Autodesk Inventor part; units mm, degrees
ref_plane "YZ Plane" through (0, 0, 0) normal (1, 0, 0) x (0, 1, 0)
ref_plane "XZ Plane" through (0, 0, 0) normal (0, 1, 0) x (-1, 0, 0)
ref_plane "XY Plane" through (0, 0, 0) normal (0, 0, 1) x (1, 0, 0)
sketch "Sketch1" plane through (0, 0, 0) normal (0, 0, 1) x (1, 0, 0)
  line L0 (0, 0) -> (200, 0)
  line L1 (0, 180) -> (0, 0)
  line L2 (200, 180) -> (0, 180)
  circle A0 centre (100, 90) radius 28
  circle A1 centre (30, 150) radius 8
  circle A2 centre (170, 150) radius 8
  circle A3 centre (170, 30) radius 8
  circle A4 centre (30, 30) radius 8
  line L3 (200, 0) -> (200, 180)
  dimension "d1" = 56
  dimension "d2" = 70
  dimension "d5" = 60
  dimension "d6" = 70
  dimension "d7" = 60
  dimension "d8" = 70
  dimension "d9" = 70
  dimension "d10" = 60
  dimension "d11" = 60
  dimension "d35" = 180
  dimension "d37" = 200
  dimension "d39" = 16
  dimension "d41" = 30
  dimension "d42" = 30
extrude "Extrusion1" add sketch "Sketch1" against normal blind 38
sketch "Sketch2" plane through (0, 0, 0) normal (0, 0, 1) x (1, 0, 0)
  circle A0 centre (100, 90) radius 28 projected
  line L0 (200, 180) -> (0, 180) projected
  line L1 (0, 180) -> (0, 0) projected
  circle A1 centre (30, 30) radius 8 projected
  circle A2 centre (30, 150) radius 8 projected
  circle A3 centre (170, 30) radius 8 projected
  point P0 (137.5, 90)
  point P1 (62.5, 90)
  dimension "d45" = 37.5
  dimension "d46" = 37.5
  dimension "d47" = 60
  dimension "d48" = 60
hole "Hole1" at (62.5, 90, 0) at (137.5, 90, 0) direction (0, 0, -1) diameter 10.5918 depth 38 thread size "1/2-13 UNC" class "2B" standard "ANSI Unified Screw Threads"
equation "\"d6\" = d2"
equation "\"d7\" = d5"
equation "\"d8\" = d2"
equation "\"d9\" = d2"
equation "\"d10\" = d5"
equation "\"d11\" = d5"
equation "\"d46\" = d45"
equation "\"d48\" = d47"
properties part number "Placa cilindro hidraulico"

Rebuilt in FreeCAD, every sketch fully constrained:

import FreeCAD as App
import Part
import Sketcher
Q = App.Units.Quantity


def add_polygon(sketch, points):
    """Adds a closed chain of lines whose ends are joined by coincident constraints."""
    first, n = sketch.GeometryCount, len(points)
    for a, b in zip(points, points[1:] + points[:1]):
        sketch.addGeometry(Part.LineSegment(App.Vector(*a, 0), App.Vector(*b, 0)), False)
    for i in range(n):
        sketch.addConstraint(Sketcher.Constraint("Coincident", first + i, 2, first + (i + 1) % n, 1))

doc = App.newDocument("Part")
body = doc.addObject("PartDesign::Body", "Body")

sketch1 = body.newObject("Sketcher::SketchObject", "Sketch")
sketch1.AttachmentSupport = (doc.getObject("XY_Plane"), [""])
sketch1.MapMode = "FlatFace"
add_polygon(sketch1, [(0, 180), (0, 0), (200, 0), (200, 180)])
sketch1.addGeometry(Part.Circle(App.Vector(30, 30, 0), App.Vector(0, 0, 1), 8), False)
sketch1.addGeometry(Part.Circle(App.Vector(170, 30, 0), App.Vector(0, 0, 1), 8), False)
sketch1.addGeometry(Part.Circle(App.Vector(30, 150, 0), App.Vector(0, 0, 1), 8), False)
sketch1.addGeometry(Part.Circle(App.Vector(100, 90, 0), App.Vector(0, 0, 1), 28), False)
sketch1.addGeometry(Part.Circle(App.Vector(170, 150, 0), App.Vector(0, 0, 1), 8), False)
sketch1.addConstraint([
    Sketcher.Constraint("Vertical", 0),
    Sketcher.Constraint("Horizontal", 1),
    Sketcher.Constraint("Vertical", 2),
    Sketcher.Constraint("Horizontal", 3),
    Sketcher.Constraint("Coincident", 0, 2, -1, 1),
    Sketcher.Constraint("Equal", 4, 5),
    Sketcher.Constraint("Equal", 5, 6),
    Sketcher.Constraint("Equal", 6, 8),
    Sketcher.Constraint("Horizontal", 4, 3, 5, 3),
    Sketcher.Constraint("Horizontal", 6, 3, 8, 3),
    Sketcher.Constraint("Vertical", 4, 3, 6, 3),
    Sketcher.Constraint("Vertical", 5, 3, 8, 3),
    Sketcher.Constraint("Diameter", 4, Q("16 mm")),
    Sketcher.Constraint("Diameter", 7, Q("56 mm")),
    Sketcher.Constraint("DistanceX", 1, 1, 1, 2, Q("200 mm")),
    Sketcher.Constraint("DistanceY", 0, 2, 0, 1, Q("180 mm")),
    Sketcher.Constraint("DistanceX", -1, 1, 4, 3, Q("30 mm")),
    Sketcher.Constraint("DistanceY", -1, 1, 4, 3, Q("30 mm")),
    Sketcher.Constraint("DistanceX", 4, 3, 7, 3, Q("70 mm")),
    Sketcher.Constraint("DistanceY", 4, 3, 7, 3, Q("60 mm")),
    Sketcher.Constraint("DistanceX", 7, 3, 5, 3, Q("70 mm")),
    Sketcher.Constraint("DistanceY", 7, 3, 6, 3, Q("60 mm")),
])
pad1 = body.newObject("PartDesign::Pad", "Pad")
pad1.Profile = sketch1
pad1.Length = 38
pad1.Reversed = True

sketch2 = body.newObject("Sketcher::SketchObject", "Sketch001")
sketch2.AttachmentSupport = (doc.getObject("XY_Plane"), [""])
sketch2.MapMode = "FlatFace"
sketch2.addGeometry([
    Part.Circle(App.Vector(62.5, 90, 0), App.Vector(0, 0, 1), 5.2959),
    Part.Circle(App.Vector(137.5, 90, 0), App.Vector(0, 0, 1), 5.2959),
], False)
sketch2.addConstraint([
    Sketcher.Constraint("Equal", 0, 1),
    Sketcher.Constraint("Horizontal", 0, 3, 1, 3),
    Sketcher.Constraint("DistanceY", -1, 1, 0, 3, Q("90 mm")),
    Sketcher.Constraint("DistanceX", 0, 3, 1, 3, Q("75 mm")),
    Sketcher.Constraint("Diameter", 0, Q("10.5918 mm")),
    Sketcher.Constraint("DistanceX", -1, 1, 0, 3, Q("62.5 mm")),
])
doc.recompute()
hole = body.newObject("PartDesign::Hole", "Hole")
hole.Profile = sketch2
hole.ThreadType = "None"
hole.Diameter = 10.5918
hole.DepthType = "Dimension"
hole.Depth = 38
hole.DrillPoint = "Flat"

doc.recompute()
